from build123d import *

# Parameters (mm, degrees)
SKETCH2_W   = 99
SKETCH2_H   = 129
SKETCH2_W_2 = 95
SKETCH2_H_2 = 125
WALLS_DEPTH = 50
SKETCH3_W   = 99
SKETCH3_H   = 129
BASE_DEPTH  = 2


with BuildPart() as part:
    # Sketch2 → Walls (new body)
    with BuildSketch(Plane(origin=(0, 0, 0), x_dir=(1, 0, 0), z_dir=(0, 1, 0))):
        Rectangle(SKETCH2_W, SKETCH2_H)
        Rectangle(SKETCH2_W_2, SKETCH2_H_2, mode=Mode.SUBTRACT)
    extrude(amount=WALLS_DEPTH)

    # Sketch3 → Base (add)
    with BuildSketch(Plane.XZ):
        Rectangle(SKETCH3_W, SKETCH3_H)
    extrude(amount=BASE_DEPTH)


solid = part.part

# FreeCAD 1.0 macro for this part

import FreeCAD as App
import Part
import Sketcher

V = App.Vector
Q = App.Units.Quantity


def add_polygon(sketch, points):
    """Adds a closed chain of lines whose ends are joined by coincident constraints."""
    first, n = sketch.GeometryCount, len(points)
    for a, b in zip(points, points[1:] + points[:1]):
        sketch.addGeometry(Part.LineSegment(App.Vector(*a, 0), App.Vector(*b, 0)), False)
    for i in range(n):
        sketch.addConstraint(Sketcher.Constraint("Coincident", first + i, 2, first + (i + 1) % n, 1))

doc = App.newDocument("Part")
body = doc.addObject("PartDesign::Body", "Body")

# Sketch on XZ plane
sketch1 = body.newObject("Sketcher::SketchObject", "Sketch")
sketch1.AttachmentSupport = (doc.getObject("XZ_Plane"), [""])
sketch1.MapMode = "FlatFace"
add_polygon(sketch1, [(-50, -64), (-50, 64), (50, 64), (50, -64)])  # lines 0-3
add_polygon(sketch1, [(48, 62), (-48, 62), (-48, -62), (48, -62)])  # lines 4-7
sketch1.addConstraint(Sketcher.Constraint("Vertical", 0))
sketch1.addConstraint(Sketcher.Constraint("Horizontal", 1))
sketch1.addConstraint(Sketcher.Constraint("Vertical", 2))
sketch1.addConstraint(Sketcher.Constraint("Horizontal", 3))
sketch1.addConstraint(Sketcher.Constraint("Horizontal", 4))
sketch1.addConstraint(Sketcher.Constraint("Vertical", 5))
sketch1.addConstraint(Sketcher.Constraint("Horizontal", 6))
sketch1.addConstraint(Sketcher.Constraint("Vertical", 7))
sketch1.addConstraint(Sketcher.Constraint("Symmetric", 0, 2, 2, 2, -1, 1))
sketch1.addConstraint(Sketcher.Constraint("Symmetric", 4, 2, 6, 2, -1, 1))
sketch1.addConstraint(Sketcher.Constraint("DistanceX", 1, 1, 1, 2, Q("99 mm")))
sketch1.addConstraint(Sketcher.Constraint("DistanceX", 4, 2, 4, 1, Q("95 mm")))
sketch1.addConstraint(Sketcher.Constraint("DistanceY", 0, 1, 0, 2, Q("129 mm")))
sketch1.addConstraint(Sketcher.Constraint("DistanceY", 5, 2, 5, 1, Q("125 mm")))
pad1 = body.newObject("PartDesign::Pad", "Pad")
pad1.Profile = sketch1
pad1.Length = 50
pad1.Reversed = True

# Sketch on XZ plane
sketch2 = body.newObject("Sketcher::SketchObject", "Sketch001")
sketch2.AttachmentSupport = (doc.getObject("XZ_Plane"), [""])
sketch2.MapMode = "FlatFace"
add_polygon(sketch2, [(-50, 64), (-50, -64), (50, -64), (50, 64)])  # lines 0-3
sketch2.addConstraint(Sketcher.Constraint("Vertical", 0))
sketch2.addConstraint(Sketcher.Constraint("Horizontal", 1))
sketch2.addConstraint(Sketcher.Constraint("Vertical", 2))
sketch2.addConstraint(Sketcher.Constraint("Horizontal", 3))
sketch2.addConstraint(Sketcher.Constraint("Symmetric", 0, 2, 2, 2, -1, 1))
sketch2.addConstraint(Sketcher.Constraint("DistanceX", 1, 1, 1, 2, Q("99 mm")))
sketch2.addConstraint(Sketcher.Constraint("DistanceY", 0, 2, 0, 1, Q("129 mm")))
pad2 = body.newObject("PartDesign::Pad", "Pad001")
pad2.Profile = sketch2
pad2.Length = 2

doc.recompute()
